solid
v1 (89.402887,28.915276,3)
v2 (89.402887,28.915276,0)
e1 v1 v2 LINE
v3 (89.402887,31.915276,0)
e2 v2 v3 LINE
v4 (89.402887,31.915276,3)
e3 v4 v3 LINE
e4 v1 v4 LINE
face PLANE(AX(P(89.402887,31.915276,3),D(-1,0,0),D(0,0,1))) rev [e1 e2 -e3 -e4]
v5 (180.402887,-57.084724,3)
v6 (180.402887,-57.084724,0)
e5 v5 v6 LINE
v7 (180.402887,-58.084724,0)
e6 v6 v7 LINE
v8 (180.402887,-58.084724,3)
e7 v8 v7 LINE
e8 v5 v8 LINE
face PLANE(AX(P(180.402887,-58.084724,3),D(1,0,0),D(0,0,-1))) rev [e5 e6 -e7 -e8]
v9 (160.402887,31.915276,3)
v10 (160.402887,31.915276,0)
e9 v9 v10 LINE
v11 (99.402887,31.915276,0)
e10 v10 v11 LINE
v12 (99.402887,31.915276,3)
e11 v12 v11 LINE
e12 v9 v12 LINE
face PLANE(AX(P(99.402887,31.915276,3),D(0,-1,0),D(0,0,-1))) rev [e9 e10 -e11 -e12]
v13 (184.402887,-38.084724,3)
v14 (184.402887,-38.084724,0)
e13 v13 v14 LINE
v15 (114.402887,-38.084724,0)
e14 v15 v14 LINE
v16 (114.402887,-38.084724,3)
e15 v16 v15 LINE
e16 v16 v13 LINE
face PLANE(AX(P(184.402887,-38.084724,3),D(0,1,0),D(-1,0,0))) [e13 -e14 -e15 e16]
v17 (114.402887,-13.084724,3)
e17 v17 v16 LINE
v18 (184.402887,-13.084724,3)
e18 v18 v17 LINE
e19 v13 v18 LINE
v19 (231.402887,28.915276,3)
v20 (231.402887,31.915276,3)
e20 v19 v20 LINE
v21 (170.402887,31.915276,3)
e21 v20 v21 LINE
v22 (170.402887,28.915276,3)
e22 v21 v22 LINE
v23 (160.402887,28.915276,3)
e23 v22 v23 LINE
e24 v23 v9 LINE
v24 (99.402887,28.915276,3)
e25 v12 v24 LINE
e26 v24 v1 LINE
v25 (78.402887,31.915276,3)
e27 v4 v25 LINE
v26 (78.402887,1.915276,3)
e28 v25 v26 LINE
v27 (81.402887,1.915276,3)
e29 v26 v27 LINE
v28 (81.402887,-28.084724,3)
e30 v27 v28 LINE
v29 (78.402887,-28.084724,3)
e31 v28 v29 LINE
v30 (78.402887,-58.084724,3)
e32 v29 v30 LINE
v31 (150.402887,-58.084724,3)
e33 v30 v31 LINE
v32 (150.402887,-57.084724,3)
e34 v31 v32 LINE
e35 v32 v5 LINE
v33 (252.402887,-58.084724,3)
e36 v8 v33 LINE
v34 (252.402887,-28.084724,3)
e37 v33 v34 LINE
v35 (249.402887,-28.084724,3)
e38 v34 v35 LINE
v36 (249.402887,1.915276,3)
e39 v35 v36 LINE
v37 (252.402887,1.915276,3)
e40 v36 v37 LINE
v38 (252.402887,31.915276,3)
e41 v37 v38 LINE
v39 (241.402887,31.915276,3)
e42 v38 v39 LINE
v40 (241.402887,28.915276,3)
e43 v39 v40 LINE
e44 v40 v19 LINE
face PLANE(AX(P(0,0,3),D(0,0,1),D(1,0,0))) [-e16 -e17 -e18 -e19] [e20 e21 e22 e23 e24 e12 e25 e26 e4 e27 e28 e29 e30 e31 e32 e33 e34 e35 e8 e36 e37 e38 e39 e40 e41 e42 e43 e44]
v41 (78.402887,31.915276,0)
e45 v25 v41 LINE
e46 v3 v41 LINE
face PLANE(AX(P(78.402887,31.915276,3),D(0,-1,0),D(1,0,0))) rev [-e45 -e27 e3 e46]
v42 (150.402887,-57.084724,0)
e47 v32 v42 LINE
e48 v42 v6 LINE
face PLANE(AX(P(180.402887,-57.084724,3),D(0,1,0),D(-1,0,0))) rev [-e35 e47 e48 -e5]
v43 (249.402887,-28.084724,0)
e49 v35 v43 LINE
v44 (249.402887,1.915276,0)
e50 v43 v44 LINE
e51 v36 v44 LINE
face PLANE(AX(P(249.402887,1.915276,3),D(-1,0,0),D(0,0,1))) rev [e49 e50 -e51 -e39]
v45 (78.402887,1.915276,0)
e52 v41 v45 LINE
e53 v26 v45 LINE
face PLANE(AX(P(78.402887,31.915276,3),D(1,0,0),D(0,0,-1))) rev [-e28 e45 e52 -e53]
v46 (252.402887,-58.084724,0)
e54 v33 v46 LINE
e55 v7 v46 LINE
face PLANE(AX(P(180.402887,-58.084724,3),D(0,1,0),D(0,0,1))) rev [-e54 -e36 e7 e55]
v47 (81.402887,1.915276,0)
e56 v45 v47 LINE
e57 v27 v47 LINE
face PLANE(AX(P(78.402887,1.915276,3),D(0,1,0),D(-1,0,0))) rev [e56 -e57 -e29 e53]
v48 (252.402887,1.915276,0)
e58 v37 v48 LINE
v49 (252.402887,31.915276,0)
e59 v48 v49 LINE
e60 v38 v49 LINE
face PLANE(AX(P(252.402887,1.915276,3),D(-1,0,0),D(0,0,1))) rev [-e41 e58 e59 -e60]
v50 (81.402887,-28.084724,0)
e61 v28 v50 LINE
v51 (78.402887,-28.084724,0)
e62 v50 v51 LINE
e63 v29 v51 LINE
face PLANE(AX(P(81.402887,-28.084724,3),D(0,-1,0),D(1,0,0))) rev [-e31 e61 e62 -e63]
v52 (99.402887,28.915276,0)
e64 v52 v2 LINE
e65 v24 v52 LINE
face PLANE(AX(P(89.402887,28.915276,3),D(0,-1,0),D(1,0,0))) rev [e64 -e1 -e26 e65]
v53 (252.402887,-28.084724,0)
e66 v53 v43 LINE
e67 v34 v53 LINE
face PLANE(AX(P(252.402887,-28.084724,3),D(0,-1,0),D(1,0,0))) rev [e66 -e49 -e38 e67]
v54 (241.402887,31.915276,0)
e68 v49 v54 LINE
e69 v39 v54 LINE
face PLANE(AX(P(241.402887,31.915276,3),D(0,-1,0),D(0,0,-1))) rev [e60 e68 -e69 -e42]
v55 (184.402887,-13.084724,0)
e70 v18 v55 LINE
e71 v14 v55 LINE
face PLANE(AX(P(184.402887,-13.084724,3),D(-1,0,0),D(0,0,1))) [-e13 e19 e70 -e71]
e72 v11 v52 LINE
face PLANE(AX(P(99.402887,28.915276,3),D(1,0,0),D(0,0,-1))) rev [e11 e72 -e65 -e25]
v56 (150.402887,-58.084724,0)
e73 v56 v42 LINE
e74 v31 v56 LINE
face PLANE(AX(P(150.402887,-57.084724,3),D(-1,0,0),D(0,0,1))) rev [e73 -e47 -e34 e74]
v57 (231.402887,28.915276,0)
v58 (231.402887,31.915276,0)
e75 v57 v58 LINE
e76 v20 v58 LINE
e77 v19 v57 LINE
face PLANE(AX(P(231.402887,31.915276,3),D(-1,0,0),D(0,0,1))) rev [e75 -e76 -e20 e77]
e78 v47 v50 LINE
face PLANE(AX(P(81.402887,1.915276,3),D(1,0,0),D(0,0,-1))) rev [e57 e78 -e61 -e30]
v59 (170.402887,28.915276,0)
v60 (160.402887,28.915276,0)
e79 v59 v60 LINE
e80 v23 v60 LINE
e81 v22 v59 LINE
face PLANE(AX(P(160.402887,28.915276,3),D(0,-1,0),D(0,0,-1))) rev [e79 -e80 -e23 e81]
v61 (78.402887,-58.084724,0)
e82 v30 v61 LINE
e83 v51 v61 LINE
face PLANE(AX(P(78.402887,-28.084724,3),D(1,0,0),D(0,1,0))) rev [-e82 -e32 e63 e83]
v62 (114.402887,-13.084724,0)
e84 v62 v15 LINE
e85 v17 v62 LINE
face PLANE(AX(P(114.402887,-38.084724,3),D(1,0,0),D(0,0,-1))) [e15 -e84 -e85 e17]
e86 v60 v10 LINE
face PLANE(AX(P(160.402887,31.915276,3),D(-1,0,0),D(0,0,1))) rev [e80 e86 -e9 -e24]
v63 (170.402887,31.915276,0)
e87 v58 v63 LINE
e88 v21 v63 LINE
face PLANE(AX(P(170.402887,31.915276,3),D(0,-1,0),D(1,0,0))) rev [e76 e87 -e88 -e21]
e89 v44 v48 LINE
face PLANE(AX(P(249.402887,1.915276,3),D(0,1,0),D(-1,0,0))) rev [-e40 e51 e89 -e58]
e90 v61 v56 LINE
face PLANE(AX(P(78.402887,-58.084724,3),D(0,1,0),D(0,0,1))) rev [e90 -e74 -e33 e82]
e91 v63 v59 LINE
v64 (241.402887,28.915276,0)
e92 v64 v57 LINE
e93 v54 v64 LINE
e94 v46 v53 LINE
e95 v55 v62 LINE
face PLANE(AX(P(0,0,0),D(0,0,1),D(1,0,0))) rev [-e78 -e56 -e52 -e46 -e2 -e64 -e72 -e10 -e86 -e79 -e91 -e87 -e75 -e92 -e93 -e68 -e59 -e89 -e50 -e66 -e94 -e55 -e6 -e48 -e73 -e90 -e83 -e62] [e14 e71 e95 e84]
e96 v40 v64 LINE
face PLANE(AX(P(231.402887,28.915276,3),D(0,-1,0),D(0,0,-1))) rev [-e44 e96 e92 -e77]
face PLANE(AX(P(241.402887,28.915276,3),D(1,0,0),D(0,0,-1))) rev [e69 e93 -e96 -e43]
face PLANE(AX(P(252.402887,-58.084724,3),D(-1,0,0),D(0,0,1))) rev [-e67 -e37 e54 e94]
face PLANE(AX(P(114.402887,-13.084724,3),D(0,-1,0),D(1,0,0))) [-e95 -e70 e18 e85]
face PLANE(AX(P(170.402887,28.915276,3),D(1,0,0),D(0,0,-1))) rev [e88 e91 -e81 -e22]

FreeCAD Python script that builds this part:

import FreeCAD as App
import Part
import Sketcher
Q = App.Units.Quantity


def add_polygon(sketch, points):
    """Adds a closed chain of lines whose ends are joined by coincident constraints."""
    first, n = sketch.GeometryCount, len(points)
    for a, b in zip(points, points[1:] + points[:1]):
        sketch.addGeometry(Part.LineSegment(App.Vector(*a, 0), App.Vector(*b, 0)), False)
    for i in range(n):
        sketch.addConstraint(Sketcher.Constraint("Coincident", first + i, 2, first + (i + 1) % n, 1))

doc = App.newDocument("Part")
body = doc.addObject("PartDesign::Body", "Body")

sketch1 = body.newObject("Sketcher::SketchObject", "Sketch")
sketch1.AttachmentSupport = (doc.getObject("XY_Plane"), [""])
sketch1.MapMode = "FlatFace"
add_polygon(sketch1, [(249.4, -28.1), (249.4, 1.9), (252.4, 1.9), (252.4, 31.9), (241.4, 31.9), (241.4, 28.9), (231.4, 28.9), (231.4, 31.9), (170.4, 31.9), (170.4, 28.9), (160.4, 28.9), (160.4, 31.9), (99.4, 31.9), (99.4, 28.9), (89.4, 28.9), (89.4, 31.9), (78.4, 31.9), (78.4, 1.9), (81.4, 1.9), (81.4, -28.1), (78.4, -28.1), (78.4, -58.1), (150.4, -58.1), (150.4, -57.1), (180.4, -57.1), (180.4, -58.1), (252.4, -58.1), (252.4, -28.1)])
add_polygon(sketch1, [(114.4, -38.1), (114.4, -13.1), (184.4, -13.1), (184.4, -38.1)])
sketch1.addConstraint(Sketcher.Constraint("Vertical", 0))
sketch1.addConstraint(Sketcher.Constraint("Horizontal", 1))
sketch1.addConstraint(Sketcher.Constraint("Vertical", 2))
sketch1.addConstraint(Sketcher.Constraint("Horizontal", 3))
sketch1.addConstraint(Sketcher.Constraint("Vertical", 4))
sketch1.addConstraint(Sketcher.Constraint("Horizontal", 5))
sketch1.addConstraint(Sketcher.Constraint("Vertical", 6))
sketch1.addConstraint(Sketcher.Constraint("Horizontal", 7))
sketch1.addConstraint(Sketcher.Constraint("Vertical", 8))
sketch1.addConstraint(Sketcher.Constraint("Horizontal", 9))
sketch1.addConstraint(Sketcher.Constraint("Vertical", 10))
sketch1.addConstraint(Sketcher.Constraint("Horizontal", 11))
sketch1.addConstraint(Sketcher.Constraint("Vertical", 12))
sketch1.addConstraint(Sketcher.Constraint("Horizontal", 13))
sketch1.addConstraint(Sketcher.Constraint("Vertical", 14))
sketch1.addConstraint(Sketcher.Constraint("Horizontal", 15))
sketch1.addConstraint(Sketcher.Constraint("Vertical", 16))
sketch1.addConstraint(Sketcher.Constraint("Horizontal", 17))
sketch1.addConstraint(Sketcher.Constraint("Vertical", 18))
sketch1.addConstraint(Sketcher.Constraint("Horizontal", 19))
sketch1.addConstraint(Sketcher.Constraint("Vertical", 20))
sketch1.addConstraint(Sketcher.Constraint("Horizontal", 21))
sketch1.addConstraint(Sketcher.Constraint("Vertical", 22))
sketch1.addConstraint(Sketcher.Constraint("Horizontal", 23))
sketch1.addConstraint(Sketcher.Constraint("Vertical", 24))
sketch1.addConstraint(Sketcher.Constraint("Horizontal", 25))
sketch1.addConstraint(Sketcher.Constraint("Vertical", 26))
sketch1.addConstraint(Sketcher.Constraint("Horizontal", 27))
sketch1.addConstraint(Sketcher.Constraint("Vertical", 28))
sketch1.addConstraint(Sketcher.Constraint("Horizontal", 29))
sketch1.addConstraint(Sketcher.Constraint("Vertical", 30))
sketch1.addConstraint(Sketcher.Constraint("Horizontal", 31))
sketch1.addConstraint(Sketcher.Constraint("Horizontal", 3, 2, 6, 2))
sketch1.addConstraint(Sketcher.Constraint("Horizontal", 5, 2, 8, 2))
sketch1.addConstraint(Sketcher.Constraint("Horizontal", 7, 2, 10, 2))
sketch1.addConstraint(Sketcher.Constraint("Horizontal", 9, 2, 12, 2))
sketch1.addConstraint(Sketcher.Constraint("Horizontal", 11, 2, 14, 2))
sketch1.addConstraint(Sketcher.Constraint("Horizontal", 1, 2, 16, 2))
sketch1.addConstraint(Sketcher.Constraint("Horizontal", 21, 2, 24, 2))
sketch1.addConstraint(Sketcher.Constraint("Horizontal", 19, 2, 26, 2))
sketch1.addConstraint(Sketcher.Constraint("Vertical", 16, 2, 19, 2))
sketch1.addConstraint(Sketcher.Constraint("Vertical", 2, 2, 25, 2))
sketch1.addConstraint(Sketcher.Constraint("Equal", 5, 9))
sketch1.addConstraint(Sketcher.Constraint("Equal", 7, 11))
sketch1.addConstraint(Sketcher.Constraint("Equal", 9, 13))
sketch1.addConstraint(Sketcher.Constraint("Equal", 3, 15))
sketch1.addConstraint(Sketcher.Constraint("Equal", 1, 17))
sketch1.addConstraint(Sketcher.Constraint("Equal", 21, 25))
sketch1.addConstraint(Sketcher.Constraint("Equal", 23, 0))
sketch1.addConstraint(Sketcher.Constraint("Equal", 0, 2))
sketch1.addConstraint(Sketcher.Constraint("Equal", 27, 4))
sketch1.addConstraint(Sketcher.Constraint("Equal", 18, 20))
sketch1.addConstraint(Sketcher.Constraint("DistanceX", 1, 1, 1, 2, Q("3 mm")))
sketch1.addConstraint(Sketcher.Constraint("DistanceX", 3, 2, 3, 1, Q("11 mm")))
sketch1.addConstraint(Sketcher.Constraint("DistanceX", 5, 2, 5, 1, Q("10 mm")))
sketch1.addConstraint(Sketcher.Constraint("DistanceX", 7, 2, 7, 1, Q("61 mm")))
sketch1.addConstraint(Sketcher.Constraint("DistanceX", 21, 1, 21, 2, Q("72 mm")))
sketch1.addConstraint(Sketcher.Constraint("DistanceX", 29, 1, 29, 2, Q("70 mm")))
sketch1.addConstraint(Sketcher.Constraint("DistanceY", 22, 1, 22, 2, Q("1 mm")))
sketch1.addConstraint(Sketcher.Constraint("DistanceY", 28, 1, 28, 2, Q("25 mm")))
sketch1.addConstraint(Sketcher.Constraint("DistanceX", 17, 2, 28, 2, Q("33 mm")))
sketch1.addConstraint(Sketcher.Constraint("DistanceY", 28, 2, 17, 2, Q("15 mm")))
sketch1.addConstraint(Sketcher.Constraint("DistanceX", -1, 1, 0, 2, Q("249.402887 mm")))
sketch1.addConstraint(Sketcher.Constraint("DistanceY", -1, 1, 0, 2, Q("1.915276 mm")))
pad1 = body.newObject("PartDesign::Pad", "Pad")
pad1.Profile = sketch1
pad1.Length = 3

doc.recompute()
